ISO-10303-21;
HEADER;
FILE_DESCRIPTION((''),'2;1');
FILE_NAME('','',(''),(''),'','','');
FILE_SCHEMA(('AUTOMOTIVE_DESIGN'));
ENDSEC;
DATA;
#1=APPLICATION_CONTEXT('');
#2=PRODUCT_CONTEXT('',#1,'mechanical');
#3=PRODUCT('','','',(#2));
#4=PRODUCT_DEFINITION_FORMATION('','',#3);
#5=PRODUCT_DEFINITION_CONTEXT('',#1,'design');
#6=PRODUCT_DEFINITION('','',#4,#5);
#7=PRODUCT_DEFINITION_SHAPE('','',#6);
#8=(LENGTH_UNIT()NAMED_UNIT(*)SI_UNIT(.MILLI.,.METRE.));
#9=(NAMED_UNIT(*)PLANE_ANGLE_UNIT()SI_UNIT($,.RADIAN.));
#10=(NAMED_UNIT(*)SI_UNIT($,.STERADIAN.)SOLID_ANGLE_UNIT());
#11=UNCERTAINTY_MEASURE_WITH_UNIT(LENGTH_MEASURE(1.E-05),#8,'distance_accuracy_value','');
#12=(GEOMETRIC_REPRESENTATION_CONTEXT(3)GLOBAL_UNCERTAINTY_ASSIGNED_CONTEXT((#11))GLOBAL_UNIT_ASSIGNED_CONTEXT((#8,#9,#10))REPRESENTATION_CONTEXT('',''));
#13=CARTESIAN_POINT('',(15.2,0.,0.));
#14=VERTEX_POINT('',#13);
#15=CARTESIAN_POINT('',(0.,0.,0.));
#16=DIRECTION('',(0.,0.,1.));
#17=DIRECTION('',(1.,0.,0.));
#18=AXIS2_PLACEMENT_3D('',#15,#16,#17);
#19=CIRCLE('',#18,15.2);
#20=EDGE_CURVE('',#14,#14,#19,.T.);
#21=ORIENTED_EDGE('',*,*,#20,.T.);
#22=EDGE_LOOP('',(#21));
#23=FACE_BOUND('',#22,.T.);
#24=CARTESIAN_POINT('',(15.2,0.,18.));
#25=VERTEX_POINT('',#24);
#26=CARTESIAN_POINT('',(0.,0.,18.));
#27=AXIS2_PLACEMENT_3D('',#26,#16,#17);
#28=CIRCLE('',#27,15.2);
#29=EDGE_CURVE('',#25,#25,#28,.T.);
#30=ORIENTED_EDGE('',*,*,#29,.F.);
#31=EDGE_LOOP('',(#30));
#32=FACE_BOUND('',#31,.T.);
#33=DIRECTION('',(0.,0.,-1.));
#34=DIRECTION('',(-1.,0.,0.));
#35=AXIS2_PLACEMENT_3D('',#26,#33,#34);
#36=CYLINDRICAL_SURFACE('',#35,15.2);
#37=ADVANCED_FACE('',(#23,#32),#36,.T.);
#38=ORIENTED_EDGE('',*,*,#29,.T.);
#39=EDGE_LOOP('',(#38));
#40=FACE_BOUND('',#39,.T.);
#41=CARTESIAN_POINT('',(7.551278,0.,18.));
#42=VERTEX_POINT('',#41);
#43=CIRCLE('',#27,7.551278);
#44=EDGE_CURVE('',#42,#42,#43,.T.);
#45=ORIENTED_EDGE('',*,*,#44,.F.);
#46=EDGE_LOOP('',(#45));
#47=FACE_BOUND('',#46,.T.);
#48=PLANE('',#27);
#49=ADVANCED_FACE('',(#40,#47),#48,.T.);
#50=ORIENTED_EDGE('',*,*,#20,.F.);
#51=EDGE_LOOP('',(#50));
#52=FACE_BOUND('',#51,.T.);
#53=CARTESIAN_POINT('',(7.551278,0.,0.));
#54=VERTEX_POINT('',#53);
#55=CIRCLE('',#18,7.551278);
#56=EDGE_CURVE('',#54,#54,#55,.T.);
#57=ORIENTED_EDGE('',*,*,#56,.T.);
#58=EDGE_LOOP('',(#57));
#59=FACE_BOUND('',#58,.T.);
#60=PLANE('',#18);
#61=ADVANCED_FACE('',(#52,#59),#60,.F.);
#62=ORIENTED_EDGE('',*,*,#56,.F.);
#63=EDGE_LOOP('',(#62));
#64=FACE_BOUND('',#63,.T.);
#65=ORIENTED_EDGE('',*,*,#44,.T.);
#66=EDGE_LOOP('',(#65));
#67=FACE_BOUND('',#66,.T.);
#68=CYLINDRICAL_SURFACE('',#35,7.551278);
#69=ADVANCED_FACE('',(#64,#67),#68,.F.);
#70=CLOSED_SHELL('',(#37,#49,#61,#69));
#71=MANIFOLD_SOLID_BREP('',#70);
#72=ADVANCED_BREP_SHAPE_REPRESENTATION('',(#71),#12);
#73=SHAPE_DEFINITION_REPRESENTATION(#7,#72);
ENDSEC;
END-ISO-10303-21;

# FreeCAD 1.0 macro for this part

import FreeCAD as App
import Part
import Sketcher

V = App.Vector
Q = App.Units.Quantity

doc = App.newDocument("Part")
body = doc.addObject("PartDesign::Body", "Body")

# Sketch on XY plane
sketch1 = doc.addObject("Sketcher::SketchObject", "Sketch")
body.addObject(sketch1)
sketch1.AttachmentSupport = (doc.XY_Plane, [""])
sketch1.MapMode = "FlatFace"
sketch1.addGeometry(Part.Circle(V(0, 0, 0), V(0, 0, 1), 15), False)
sketch1.addGeometry(Part.Circle(V(0, 0, 0), V(0, 0, 1), 8), False)
sketch1.addConstraint(Sketcher.Constraint("Coincident", 0, 3, -1, 1))
sketch1.addConstraint(Sketcher.Constraint("Coincident", 1, 3, -1, 1))
sketch1.addConstraint(Sketcher.Constraint("Diameter", 0, Q("30.4 mm")))
sketch1.addConstraint(Sketcher.Constraint("Diameter", 1, Q("15.102556 mm")))
pad1 = doc.addObject("PartDesign::Pad", "Pad")
body.addObject(pad1)
pad1.Profile = sketch1
pad1.Length = 18

doc.recompute()
